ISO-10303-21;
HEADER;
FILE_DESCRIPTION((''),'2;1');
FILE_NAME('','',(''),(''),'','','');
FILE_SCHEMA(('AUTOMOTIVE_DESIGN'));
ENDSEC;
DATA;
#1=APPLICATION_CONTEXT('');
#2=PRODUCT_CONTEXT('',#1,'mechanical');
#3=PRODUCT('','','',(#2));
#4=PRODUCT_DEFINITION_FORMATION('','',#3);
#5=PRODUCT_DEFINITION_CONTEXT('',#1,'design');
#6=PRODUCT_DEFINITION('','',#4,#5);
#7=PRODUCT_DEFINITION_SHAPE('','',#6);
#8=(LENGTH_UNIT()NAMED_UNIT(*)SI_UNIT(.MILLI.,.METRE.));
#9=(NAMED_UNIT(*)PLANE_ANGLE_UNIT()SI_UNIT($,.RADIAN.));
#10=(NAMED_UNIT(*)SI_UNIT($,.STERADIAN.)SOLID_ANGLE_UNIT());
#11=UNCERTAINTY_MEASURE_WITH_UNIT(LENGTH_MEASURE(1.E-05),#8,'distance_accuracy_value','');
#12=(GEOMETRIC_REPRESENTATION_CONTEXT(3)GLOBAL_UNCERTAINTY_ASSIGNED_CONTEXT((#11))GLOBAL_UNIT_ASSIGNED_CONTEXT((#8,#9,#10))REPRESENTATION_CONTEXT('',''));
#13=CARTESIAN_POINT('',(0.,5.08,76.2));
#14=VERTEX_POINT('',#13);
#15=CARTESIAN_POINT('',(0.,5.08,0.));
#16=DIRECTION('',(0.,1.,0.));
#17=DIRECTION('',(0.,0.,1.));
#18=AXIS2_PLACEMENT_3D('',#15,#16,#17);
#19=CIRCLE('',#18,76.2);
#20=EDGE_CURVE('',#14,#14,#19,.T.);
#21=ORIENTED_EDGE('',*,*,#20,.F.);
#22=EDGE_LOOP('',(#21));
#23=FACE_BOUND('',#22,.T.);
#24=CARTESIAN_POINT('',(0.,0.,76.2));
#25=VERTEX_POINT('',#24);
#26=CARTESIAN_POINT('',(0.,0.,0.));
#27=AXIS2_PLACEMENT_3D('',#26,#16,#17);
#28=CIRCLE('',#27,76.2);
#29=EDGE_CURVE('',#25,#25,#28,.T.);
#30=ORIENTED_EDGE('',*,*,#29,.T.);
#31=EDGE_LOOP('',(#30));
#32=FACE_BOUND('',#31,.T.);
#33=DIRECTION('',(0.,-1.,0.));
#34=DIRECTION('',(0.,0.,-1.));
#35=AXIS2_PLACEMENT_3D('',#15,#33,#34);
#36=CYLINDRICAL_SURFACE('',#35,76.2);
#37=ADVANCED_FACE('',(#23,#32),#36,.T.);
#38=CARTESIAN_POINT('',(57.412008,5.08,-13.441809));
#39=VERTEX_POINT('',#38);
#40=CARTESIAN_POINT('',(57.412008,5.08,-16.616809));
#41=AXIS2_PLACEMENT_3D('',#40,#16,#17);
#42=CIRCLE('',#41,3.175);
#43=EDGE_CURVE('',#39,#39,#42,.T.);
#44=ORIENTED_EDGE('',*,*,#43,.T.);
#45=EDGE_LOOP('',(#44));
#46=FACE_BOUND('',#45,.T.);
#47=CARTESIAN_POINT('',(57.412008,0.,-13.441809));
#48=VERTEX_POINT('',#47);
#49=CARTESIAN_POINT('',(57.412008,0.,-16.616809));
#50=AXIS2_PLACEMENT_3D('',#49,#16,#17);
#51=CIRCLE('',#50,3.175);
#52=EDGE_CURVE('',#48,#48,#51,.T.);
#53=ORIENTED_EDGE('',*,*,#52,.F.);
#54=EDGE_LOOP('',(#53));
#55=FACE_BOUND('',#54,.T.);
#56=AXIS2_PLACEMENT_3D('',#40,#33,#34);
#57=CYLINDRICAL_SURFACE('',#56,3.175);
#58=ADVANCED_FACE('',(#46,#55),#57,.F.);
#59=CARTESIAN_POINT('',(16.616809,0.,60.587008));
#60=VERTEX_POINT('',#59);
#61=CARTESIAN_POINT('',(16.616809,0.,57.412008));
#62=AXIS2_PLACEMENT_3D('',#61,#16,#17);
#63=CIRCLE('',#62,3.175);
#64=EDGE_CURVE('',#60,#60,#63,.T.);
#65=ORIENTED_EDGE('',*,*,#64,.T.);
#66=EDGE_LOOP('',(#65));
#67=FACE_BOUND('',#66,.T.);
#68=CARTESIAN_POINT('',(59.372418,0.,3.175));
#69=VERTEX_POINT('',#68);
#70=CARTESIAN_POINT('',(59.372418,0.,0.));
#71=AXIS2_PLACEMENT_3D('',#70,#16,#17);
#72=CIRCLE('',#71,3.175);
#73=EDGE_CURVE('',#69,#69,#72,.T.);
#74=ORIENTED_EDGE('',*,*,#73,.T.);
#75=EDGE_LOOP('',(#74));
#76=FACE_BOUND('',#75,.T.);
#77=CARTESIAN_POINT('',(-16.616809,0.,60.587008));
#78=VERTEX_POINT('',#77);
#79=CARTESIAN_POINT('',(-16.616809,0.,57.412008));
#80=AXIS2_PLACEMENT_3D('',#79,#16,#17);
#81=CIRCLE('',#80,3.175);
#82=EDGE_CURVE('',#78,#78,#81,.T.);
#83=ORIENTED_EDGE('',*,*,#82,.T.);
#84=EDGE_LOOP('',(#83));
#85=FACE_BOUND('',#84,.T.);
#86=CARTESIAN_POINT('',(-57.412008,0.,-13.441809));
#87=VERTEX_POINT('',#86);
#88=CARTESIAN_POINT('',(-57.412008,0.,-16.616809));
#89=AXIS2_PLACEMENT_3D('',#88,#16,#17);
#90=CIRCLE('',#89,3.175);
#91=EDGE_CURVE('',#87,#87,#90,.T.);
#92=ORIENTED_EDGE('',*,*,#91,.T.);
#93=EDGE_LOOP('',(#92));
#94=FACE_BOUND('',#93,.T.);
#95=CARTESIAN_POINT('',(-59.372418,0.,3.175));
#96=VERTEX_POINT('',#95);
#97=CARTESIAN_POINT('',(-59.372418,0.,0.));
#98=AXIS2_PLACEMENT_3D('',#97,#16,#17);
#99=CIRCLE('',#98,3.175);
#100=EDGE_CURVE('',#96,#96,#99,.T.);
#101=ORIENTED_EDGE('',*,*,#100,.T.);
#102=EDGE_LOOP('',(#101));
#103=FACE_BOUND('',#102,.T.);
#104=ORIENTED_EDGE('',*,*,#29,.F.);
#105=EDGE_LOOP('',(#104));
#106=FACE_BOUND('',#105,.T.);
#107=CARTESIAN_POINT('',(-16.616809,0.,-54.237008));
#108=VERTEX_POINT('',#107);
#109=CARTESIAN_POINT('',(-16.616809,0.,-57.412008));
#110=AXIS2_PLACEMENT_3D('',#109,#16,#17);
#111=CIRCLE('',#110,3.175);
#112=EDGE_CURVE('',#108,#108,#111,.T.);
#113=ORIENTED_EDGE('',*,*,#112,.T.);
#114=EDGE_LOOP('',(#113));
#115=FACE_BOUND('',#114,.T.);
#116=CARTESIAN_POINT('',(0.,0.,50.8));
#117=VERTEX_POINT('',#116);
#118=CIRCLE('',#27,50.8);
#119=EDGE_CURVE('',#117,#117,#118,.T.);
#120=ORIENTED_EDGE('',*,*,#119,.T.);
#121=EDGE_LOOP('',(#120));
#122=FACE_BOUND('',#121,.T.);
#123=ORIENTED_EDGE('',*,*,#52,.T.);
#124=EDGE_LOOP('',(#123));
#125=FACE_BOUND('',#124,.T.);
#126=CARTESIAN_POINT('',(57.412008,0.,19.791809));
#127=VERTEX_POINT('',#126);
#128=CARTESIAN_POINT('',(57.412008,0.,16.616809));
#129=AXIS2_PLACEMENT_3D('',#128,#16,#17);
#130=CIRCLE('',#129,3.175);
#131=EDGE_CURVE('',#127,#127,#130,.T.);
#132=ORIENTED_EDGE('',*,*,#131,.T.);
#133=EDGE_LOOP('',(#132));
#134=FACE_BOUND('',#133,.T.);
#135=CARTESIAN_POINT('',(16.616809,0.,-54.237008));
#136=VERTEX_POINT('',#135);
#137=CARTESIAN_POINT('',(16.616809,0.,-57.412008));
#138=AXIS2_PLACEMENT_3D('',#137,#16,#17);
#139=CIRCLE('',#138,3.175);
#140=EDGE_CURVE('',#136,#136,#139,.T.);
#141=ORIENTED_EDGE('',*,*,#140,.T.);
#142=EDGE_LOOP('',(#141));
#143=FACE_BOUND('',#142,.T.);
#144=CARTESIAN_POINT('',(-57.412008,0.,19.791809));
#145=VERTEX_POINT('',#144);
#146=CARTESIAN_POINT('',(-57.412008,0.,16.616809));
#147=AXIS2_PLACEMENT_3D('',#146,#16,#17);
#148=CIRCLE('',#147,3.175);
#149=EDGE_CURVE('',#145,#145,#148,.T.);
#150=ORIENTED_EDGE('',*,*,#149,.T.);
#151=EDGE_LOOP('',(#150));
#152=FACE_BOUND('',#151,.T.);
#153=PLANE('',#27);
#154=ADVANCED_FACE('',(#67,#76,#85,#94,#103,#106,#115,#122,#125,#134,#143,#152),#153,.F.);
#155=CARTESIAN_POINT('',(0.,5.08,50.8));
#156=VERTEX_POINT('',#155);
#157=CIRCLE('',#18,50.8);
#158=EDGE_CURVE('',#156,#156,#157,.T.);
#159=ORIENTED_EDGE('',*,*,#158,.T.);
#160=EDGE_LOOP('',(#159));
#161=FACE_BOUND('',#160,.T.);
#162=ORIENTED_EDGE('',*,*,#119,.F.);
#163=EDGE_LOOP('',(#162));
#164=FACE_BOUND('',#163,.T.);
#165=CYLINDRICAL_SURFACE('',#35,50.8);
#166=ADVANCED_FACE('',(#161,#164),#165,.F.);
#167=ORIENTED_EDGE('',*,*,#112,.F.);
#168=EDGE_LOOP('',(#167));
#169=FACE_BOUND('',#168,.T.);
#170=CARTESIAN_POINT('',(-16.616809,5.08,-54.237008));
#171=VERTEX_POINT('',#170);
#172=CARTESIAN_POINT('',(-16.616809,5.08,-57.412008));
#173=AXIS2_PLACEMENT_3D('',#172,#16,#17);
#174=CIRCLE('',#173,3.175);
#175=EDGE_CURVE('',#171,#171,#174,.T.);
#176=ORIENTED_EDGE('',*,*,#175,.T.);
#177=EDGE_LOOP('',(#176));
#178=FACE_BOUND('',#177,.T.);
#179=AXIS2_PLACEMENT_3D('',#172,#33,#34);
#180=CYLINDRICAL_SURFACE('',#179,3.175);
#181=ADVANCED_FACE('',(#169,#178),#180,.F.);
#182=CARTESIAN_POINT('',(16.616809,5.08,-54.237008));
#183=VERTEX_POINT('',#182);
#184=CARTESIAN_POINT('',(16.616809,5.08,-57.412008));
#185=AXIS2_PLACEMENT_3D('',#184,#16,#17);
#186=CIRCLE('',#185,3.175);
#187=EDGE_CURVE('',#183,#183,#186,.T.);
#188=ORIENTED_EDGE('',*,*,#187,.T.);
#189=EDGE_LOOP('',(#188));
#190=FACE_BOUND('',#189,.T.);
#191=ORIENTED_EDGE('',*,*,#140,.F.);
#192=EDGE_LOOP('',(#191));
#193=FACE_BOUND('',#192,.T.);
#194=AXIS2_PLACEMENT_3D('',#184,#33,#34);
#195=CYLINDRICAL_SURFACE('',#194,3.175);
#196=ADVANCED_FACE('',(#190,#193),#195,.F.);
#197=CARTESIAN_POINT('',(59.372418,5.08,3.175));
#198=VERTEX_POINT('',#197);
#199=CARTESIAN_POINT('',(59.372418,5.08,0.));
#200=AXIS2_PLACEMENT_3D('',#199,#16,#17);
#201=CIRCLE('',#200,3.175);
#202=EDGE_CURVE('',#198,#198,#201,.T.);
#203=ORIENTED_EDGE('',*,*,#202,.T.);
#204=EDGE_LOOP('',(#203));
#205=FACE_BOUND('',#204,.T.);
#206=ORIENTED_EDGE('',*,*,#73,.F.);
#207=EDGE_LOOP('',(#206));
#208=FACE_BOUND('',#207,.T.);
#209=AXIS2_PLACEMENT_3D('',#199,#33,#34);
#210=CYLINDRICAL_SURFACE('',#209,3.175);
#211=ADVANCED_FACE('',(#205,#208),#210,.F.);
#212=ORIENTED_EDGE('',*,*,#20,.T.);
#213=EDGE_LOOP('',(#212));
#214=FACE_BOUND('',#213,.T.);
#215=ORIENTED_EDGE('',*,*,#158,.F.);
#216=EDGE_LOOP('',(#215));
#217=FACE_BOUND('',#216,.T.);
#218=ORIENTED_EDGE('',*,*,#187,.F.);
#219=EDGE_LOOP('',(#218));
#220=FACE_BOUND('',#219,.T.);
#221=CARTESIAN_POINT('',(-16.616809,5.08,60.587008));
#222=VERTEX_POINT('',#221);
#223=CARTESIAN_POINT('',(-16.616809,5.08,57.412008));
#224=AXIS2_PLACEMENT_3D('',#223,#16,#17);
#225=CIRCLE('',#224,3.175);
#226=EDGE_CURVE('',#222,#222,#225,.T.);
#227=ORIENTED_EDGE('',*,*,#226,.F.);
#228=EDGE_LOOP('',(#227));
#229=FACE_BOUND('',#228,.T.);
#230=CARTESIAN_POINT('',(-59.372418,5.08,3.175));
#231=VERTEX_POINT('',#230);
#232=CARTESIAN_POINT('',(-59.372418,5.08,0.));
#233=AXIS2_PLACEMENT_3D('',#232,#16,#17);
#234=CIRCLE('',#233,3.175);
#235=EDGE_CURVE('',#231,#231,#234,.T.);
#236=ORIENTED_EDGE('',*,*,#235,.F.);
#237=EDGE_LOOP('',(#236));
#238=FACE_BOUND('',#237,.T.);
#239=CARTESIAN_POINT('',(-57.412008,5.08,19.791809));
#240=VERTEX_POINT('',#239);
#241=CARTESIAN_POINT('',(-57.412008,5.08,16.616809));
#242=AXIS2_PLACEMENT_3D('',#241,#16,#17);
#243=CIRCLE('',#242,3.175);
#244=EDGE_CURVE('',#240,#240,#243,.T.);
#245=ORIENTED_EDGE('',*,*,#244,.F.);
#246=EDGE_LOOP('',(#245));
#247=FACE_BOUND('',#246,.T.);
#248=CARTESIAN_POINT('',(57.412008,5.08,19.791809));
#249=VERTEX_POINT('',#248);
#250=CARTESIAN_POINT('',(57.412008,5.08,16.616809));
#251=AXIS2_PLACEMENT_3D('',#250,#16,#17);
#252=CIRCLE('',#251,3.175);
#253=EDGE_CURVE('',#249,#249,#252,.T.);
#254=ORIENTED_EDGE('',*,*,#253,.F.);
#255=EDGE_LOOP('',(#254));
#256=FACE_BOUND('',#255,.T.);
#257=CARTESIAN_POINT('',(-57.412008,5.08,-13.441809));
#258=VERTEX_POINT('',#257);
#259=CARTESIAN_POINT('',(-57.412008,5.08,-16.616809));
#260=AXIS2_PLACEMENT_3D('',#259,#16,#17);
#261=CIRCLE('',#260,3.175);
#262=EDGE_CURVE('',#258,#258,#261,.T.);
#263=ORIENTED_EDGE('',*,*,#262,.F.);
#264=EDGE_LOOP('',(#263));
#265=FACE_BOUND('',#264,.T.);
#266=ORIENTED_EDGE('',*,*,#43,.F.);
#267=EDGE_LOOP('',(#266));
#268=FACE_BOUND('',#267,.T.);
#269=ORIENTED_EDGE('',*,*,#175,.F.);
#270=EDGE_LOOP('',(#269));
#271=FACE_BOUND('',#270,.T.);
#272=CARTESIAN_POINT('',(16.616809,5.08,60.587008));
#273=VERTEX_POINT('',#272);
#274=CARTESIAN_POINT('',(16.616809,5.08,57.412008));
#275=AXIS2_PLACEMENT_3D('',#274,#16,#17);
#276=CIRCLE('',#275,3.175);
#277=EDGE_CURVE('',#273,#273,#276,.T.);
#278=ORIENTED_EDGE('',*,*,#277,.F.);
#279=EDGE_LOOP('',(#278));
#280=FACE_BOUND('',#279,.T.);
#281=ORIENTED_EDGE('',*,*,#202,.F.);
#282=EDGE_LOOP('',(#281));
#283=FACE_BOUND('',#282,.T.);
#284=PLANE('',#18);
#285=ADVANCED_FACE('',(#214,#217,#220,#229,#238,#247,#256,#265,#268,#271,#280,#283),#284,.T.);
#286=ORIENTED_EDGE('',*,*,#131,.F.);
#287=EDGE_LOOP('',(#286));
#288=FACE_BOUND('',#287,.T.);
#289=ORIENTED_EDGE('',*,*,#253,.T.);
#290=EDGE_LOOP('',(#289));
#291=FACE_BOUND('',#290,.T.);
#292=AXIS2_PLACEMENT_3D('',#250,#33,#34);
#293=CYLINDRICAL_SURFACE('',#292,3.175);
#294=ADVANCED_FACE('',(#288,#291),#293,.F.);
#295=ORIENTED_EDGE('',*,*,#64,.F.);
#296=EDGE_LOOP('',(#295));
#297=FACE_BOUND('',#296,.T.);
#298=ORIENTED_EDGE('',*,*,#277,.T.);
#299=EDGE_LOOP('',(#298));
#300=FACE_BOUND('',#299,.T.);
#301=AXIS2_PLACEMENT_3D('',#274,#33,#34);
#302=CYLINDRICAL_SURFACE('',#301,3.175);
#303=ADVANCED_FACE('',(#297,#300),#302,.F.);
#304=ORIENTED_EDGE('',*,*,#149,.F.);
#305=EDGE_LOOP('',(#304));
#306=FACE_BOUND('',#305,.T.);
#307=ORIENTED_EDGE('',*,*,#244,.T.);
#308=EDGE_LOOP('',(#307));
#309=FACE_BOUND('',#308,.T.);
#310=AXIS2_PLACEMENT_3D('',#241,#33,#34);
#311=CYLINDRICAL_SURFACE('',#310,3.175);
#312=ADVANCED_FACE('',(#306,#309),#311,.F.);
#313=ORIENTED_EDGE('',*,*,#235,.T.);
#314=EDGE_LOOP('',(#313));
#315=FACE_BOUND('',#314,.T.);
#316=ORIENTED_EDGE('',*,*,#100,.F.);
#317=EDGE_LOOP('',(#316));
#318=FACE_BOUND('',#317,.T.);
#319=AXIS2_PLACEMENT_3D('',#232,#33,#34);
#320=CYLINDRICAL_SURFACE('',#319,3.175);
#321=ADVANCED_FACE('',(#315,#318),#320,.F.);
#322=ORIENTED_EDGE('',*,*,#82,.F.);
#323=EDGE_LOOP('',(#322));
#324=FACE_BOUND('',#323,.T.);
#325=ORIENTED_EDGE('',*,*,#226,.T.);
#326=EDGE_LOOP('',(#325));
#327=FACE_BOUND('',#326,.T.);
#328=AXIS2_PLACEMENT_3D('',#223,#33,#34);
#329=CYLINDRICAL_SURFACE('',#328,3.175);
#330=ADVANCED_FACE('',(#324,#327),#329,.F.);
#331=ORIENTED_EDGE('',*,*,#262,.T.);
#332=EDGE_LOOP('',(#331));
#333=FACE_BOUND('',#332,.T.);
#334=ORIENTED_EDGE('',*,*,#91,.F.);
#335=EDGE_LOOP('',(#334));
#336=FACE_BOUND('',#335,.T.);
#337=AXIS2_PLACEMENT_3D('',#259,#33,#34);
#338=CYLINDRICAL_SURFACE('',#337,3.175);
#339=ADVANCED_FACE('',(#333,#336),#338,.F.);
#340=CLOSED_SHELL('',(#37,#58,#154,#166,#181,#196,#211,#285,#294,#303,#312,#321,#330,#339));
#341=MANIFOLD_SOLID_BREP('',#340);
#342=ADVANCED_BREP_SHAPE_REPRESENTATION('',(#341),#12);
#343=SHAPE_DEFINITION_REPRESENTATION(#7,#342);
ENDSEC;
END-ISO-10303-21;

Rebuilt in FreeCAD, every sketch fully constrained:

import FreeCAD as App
import Part
import Sketcher

V = App.Vector
Q = App.Units.Quantity

doc = App.newDocument("Part")
params = doc.addObject("Spreadsheet::Sheet", "Params")
for row, (alias, value) in enumerate([
    ("sketch1_diameter", "6 in"),
    ("sketch1_diameter2", "4 in"),
    ("sketch1_diameter3", "0.25 in"),
    ("pad1_length", "0.2 in"),
], start=1):
    params.set(f"A{row}", alias)
    params.set(f"B{row}", "=" + value)
    params.setAlias(f"B{row}", alias)

body = doc.addObject("PartDesign::Body", "Body")

sketch1 = body.newObject("Sketcher::SketchObject", "Sketch")
sketch1.AttachmentSupport = (doc.getObject("XZ_Plane"), [""])
sketch1.MapMode = "FlatFace"
sketch1.addGeometry(Part.Circle(V(0, 0, 0), V(0, 0, 1), 76.2), False)
sketch1.addGeometry(Part.Circle(V(-57.412008, -16.616809, 0), V(0, 0, 1), 3.175), False)
sketch1.addGeometry(Part.Circle(V(-16.616809, -57.412008, 0), V(0, 0, 1), 3.175), False)
sketch1.addGeometry(Part.Circle(V(-59.372418, 0, 0), V(0, 0, 1), 3.175), False)
sketch1.addGeometry(Part.Circle(V(-57.412008, 16.616809, 0), V(0, 0, 1), 3.175), False)
sketch1.addGeometry(Part.Circle(V(-16.616809, 57.412008, 0), V(0, 0, 1), 3.175), False)
sketch1.addGeometry(Part.Circle(V(16.616809, -57.412008, 0), V(0, 0, 1), 3.175), False)
sketch1.addGeometry(Part.Circle(V(0, 0, 0), V(0, 0, 1), 50.8), False)
sketch1.addGeometry(Part.Circle(V(57.412008, -16.616809, 0), V(0, 0, 1), 3.175), False)
sketch1.addGeometry(Part.Circle(V(59.372418, 0, 0), V(0, 0, 1), 3.175), False)
sketch1.addGeometry(Part.Circle(V(16.616809, 57.412008, 0), V(0, 0, 1), 3.175), False)
sketch1.addGeometry(Part.Circle(V(57.412008, 16.616809, 0), V(0, 0, 1), 3.175), False)
sketch1.addConstraint(Sketcher.Constraint("Coincident", 0, 3, -1, 1))
sketch1.addConstraint(Sketcher.Constraint("Coincident", 7, 3, -1, 1))
sketch1.addConstraint(Sketcher.Constraint("Equal", 1, 2))
sketch1.addConstraint(Sketcher.Constraint("Equal", 2, 3))
sketch1.addConstraint(Sketcher.Constraint("Equal", 3, 4))
sketch1.addConstraint(Sketcher.Constraint("Equal", 4, 5))
sketch1.addConstraint(Sketcher.Constraint("Equal", 5, 6))
sketch1.addConstraint(Sketcher.Constraint("Equal", 6, 8))
sketch1.addConstraint(Sketcher.Constraint("Equal", 8, 9))
sketch1.addConstraint(Sketcher.Constraint("Equal", 9, 10))
sketch1.addConstraint(Sketcher.Constraint("Equal", 10, 11))
sketch1.addConstraint(Sketcher.Constraint("Symmetric", 5, 3, 6, 3, -1, 1))
sketch1.addConstraint(Sketcher.Constraint("Symmetric", 4, 3, 8, 3, -1, 1))
sketch1.addConstraint(Sketcher.Constraint("Symmetric", 3, 3, 9, 3, -1, 1))
sketch1.addConstraint(Sketcher.Constraint("Symmetric", 2, 3, 10, 3, -1, 1))
sketch1.addConstraint(Sketcher.Constraint("Symmetric", 1, 3, 11, 3, -1, 1))
sketch1.addConstraint(Sketcher.Constraint("Symmetric", 2, 3, 6, 3, -2))
sketch1.addConstraint(Sketcher.Constraint("Symmetric", 1, 3, 8, 3, -2))
sketch1.addConstraint(Sketcher.Constraint("PointOnObject", 3, 3, -1))
sketch1.addConstraint(Sketcher.Constraint("Diameter", 0, Q("6 in")))
sketch1.addConstraint(Sketcher.Constraint("Diameter", 7, Q("4 in")))
sketch1.addConstraint(Sketcher.Constraint("Diameter", 1, Q("0.25 in")))
sketch1.addConstraint(Sketcher.Constraint("DistanceX", 1, 3, 2, 3, Q("40.795199 mm")))
sketch1.addConstraint(Sketcher.Constraint("DistanceY", 2, 3, 1, 3, Q("40.795199 mm")))
sketch1.addConstraint(Sketcher.Constraint("DistanceY", 1, 3, -1, 1, Q("16.616809 mm")))
sketch1.addConstraint(Sketcher.Constraint("DistanceX", 2, 3, -1, 1, Q("16.616809 mm")))
sketch1.addConstraint(Sketcher.Constraint("DistanceX", 3, 3, 1, 3, Q("1.96041 mm")))
sketch1.setExpression("Constraints[19]", "Params.sketch1_diameter")
sketch1.setExpression("Constraints[20]", "Params.sketch1_diameter2")
sketch1.setExpression("Constraints[21]", "Params.sketch1_diameter3")
pad1 = body.newObject("PartDesign::Pad", "Pad")
pad1.Profile = sketch1
pad1.setExpression("Length", "Params.pad1_length")
pad1.Reversed = True

doc.recompute()
